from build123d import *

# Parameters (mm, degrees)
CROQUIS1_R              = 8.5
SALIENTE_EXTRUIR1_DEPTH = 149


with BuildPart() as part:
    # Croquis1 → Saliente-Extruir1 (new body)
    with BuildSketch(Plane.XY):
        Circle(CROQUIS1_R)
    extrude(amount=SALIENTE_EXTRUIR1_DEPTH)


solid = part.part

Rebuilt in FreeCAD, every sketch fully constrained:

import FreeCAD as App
import Part
import Sketcher
from FreeCAD import Vector
Q = App.Units.Quantity

doc = App.newDocument("Part")
body = doc.addObject("PartDesign::Body", "Body")

# Sketch on XY plane
sketch1 = doc.addObject("Sketcher::SketchObject", "Sketch")
body.addObject(sketch1)
sketch1.AttachmentSupport = (doc.XY_Plane, [""])
sketch1.MapMode = "FlatFace"
sketch1.addGeometry(Part.Circle(Vector(0, 0, 0), Vector(0, 0, 1), 8), False)
sketch1.addConstraint(Sketcher.Constraint("Coincident", 0, 3, -1, 1))
sketch1.addConstraint(Sketcher.Constraint("Diameter", 0, Q("17 mm")))
pad1 = doc.addObject("PartDesign::Pad", "Pad")
body.addObject(pad1)
pad1.Profile = sketch1
pad1.Length = 149

doc.recompute()
